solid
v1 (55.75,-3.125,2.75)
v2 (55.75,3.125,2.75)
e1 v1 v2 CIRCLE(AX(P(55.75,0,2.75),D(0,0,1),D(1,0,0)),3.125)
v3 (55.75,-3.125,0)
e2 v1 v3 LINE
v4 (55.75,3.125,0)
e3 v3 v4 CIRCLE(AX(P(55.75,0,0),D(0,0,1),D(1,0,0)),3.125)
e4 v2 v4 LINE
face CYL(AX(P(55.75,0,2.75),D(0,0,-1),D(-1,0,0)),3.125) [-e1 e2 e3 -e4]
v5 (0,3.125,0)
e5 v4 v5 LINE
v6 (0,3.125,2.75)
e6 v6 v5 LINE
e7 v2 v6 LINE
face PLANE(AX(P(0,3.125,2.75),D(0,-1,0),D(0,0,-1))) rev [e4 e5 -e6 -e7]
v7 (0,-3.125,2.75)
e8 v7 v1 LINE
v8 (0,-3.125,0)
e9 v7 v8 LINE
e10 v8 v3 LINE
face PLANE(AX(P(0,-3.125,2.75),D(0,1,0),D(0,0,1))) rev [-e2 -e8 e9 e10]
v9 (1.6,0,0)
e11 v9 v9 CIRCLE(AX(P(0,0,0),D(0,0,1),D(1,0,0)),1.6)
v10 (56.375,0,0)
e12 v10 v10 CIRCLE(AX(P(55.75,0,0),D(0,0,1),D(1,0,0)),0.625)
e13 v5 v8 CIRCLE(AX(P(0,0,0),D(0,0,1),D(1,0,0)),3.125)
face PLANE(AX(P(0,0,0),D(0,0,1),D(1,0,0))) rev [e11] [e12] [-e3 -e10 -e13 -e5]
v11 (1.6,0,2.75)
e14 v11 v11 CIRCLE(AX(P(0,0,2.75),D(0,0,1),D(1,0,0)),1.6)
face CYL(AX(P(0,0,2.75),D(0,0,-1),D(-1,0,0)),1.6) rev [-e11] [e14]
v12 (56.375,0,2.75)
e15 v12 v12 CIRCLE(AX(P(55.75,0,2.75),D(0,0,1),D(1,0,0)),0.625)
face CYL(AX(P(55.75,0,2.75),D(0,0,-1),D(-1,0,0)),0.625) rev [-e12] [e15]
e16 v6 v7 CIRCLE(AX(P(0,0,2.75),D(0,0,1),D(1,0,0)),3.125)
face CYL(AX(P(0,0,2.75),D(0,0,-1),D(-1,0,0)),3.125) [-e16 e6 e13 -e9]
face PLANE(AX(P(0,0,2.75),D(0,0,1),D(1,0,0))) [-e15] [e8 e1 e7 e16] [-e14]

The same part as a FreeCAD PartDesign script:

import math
import FreeCAD as App
import Part
import Sketcher
Q = App.Units.Quantity

doc = App.newDocument("Part")
body = doc.addObject("PartDesign::Body", "Body")

sketch1 = body.newObject("Sketcher::SketchObject", "Sketch")
sketch1.AttachmentSupport = (doc.getObject("XY_Plane"), [""])
sketch1.MapMode = "FlatFace"
sketch1.addGeometry([
    Part.LineSegment(App.Vector(55.8, 3.1, 0), App.Vector(0, 3.1, 0)),
    Part.ArcOfCircle(Part.Circle(App.Vector(0, 0, 0), App.Vector(0, 0, 1), 3.1), math.radians(90), math.radians(270)),
    Part.LineSegment(App.Vector(0, -3.1, 0), App.Vector(55.8, -3.1, 0)),
    Part.ArcOfCircle(Part.Circle(App.Vector(55.8, 0, 0), App.Vector(0, 0, 1), 3.1), math.radians(-90), math.radians(90)),
    Part.Circle(App.Vector(55.8, 0, 0), App.Vector(0, 0, 1), 0.6),
    Part.Circle(App.Vector(0, 0, 0), App.Vector(0, 0, 1), 1.6),
], False)
sketch1.addConstraint([
    Sketcher.Constraint("Tangent", 0, 2, 1, 1),
    Sketcher.Constraint("Tangent", 1, 2, 2, 1),
    Sketcher.Constraint("Tangent", 2, 2, 3, 1),
    Sketcher.Constraint("Tangent", 3, 2, 0, 1),
    Sketcher.Constraint("Horizontal", 0),
    Sketcher.Constraint("Horizontal", 2),
    Sketcher.Constraint("Coincident", 1, 3, -1, 1),
    Sketcher.Constraint("Coincident", 5, 3, -1, 1),
    Sketcher.Constraint("Coincident", 4, 3, 3, 3),
    Sketcher.Constraint("Diameter", 5, Q("3.2 mm")),
    Sketcher.Constraint("Diameter", 4, Q("1.25 mm")),
    Sketcher.Constraint("Radius", 1, Q("3.125 mm")),
    Sketcher.Constraint("DistanceX", 0, 2, 0, 1, Q("55.75 mm")),
])
pad1 = body.newObject("PartDesign::Pad", "Pad")
pad1.Profile = sketch1
pad1.Length = 2.75

doc.recompute()
